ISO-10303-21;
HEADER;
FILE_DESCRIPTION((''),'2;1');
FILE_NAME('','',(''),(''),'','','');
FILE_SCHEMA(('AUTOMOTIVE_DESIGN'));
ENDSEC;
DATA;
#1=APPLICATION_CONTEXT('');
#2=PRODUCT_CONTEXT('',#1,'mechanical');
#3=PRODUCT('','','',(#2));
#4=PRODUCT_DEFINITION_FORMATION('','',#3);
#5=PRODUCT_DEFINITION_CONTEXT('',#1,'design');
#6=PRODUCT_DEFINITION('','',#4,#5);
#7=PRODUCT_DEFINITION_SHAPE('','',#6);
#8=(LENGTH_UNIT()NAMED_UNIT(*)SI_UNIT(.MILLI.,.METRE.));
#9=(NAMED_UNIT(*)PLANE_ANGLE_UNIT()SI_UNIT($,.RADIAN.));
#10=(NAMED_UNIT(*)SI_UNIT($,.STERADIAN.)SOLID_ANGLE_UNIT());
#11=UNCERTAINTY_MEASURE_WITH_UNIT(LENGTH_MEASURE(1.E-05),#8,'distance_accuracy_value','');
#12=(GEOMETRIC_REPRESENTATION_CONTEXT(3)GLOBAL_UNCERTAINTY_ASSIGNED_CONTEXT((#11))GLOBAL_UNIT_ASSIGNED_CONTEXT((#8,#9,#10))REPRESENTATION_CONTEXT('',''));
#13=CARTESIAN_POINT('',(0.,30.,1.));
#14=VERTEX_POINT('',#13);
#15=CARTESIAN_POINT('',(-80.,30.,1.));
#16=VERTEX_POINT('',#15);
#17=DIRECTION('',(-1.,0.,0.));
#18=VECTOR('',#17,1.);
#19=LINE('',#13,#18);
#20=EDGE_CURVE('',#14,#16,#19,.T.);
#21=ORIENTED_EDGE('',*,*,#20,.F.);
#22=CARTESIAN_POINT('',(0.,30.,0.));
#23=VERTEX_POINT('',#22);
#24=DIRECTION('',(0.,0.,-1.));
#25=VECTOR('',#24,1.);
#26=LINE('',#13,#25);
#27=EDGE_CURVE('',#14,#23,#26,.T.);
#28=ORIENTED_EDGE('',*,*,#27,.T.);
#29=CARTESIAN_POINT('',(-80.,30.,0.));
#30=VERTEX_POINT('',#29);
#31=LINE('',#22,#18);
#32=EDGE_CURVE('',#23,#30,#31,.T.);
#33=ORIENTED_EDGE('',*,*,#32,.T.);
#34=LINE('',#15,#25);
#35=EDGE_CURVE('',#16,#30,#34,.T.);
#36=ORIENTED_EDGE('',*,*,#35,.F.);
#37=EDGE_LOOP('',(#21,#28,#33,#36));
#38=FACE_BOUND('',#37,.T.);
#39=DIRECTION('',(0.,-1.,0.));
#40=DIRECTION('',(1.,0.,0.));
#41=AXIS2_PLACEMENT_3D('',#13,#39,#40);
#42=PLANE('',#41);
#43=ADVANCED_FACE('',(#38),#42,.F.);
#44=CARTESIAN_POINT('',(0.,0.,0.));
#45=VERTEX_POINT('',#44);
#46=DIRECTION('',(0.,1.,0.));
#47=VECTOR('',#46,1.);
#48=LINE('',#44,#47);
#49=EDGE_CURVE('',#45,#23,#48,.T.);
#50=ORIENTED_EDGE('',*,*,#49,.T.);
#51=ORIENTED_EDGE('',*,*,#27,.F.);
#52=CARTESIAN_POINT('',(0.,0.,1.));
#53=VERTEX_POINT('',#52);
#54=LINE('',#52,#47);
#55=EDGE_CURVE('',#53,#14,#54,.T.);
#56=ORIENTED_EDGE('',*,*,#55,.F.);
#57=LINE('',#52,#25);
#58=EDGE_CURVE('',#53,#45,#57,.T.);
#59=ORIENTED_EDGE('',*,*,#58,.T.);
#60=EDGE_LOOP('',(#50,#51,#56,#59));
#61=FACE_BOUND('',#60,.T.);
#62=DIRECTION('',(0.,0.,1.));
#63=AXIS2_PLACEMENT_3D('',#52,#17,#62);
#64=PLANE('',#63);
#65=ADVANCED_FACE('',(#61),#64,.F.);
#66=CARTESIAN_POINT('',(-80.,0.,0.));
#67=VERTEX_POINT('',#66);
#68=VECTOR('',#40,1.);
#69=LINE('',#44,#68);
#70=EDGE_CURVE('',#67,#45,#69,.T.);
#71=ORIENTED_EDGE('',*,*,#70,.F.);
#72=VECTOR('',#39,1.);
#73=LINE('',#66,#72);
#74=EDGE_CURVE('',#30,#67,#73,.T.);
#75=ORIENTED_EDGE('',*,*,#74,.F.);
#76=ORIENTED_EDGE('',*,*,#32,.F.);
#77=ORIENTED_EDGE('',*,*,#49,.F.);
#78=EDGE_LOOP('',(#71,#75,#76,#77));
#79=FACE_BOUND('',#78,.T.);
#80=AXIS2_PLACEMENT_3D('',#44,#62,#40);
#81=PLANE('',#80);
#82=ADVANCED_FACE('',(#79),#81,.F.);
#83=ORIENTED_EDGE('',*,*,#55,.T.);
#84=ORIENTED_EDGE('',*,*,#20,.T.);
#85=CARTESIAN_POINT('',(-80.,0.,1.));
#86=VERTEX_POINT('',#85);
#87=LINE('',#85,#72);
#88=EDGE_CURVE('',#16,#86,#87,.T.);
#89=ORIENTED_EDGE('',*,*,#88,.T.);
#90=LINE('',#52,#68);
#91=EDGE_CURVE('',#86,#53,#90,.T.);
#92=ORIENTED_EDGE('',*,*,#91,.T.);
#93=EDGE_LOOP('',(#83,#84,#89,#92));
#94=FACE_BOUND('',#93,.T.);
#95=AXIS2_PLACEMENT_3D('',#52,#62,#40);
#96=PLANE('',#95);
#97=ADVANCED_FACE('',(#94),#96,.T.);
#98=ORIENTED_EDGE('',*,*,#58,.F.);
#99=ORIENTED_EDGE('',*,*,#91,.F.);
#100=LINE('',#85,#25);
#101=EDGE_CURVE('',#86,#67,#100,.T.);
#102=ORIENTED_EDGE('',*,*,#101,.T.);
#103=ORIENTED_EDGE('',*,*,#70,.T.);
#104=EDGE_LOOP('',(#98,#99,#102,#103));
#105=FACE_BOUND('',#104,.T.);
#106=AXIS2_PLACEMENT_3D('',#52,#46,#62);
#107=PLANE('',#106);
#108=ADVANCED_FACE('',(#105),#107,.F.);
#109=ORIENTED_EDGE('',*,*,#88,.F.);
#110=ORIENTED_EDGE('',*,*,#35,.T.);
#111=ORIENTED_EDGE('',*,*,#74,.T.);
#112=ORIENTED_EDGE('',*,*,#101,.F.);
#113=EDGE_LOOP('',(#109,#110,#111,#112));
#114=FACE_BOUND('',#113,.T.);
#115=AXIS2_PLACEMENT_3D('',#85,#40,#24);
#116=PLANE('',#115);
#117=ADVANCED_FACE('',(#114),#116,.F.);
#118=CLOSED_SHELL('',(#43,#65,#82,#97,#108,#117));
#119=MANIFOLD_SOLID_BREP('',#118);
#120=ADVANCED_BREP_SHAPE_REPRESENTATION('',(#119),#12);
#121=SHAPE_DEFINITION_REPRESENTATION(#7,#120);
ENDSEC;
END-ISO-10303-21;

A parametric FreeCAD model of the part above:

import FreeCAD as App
import Part
import Sketcher

V = App.Vector

doc = App.newDocument("Part")
params = doc.addObject("Spreadsheet::Sheet", "Params")
for row, (alias, value) in enumerate([
    ("sketch1_width", "80 mm"),
    ("sketch1_height", "30 mm"),
    ("pad1_length", "1 mm"),
], start=1):
    params.set(f"A{row}", alias)
    params.set(f"B{row}", "=" + value)
    params.setAlias(f"B{row}", alias)

body = doc.addObject("PartDesign::Body", "Body")

sketch1 = body.newObject("Sketcher::SketchObject", "Sketch")
sketch1.AttachmentSupport = (doc.getObject("XY_Plane"), [""])
sketch1.MapMode = "FlatFace"
sketch1.addGeometry(Part.LineSegment(V(-80, 30, 0), V(-80, 0, 0)), False)
sketch1.addGeometry(Part.LineSegment(V(-80, 0, 0), V(0, 0, 0)), False)
sketch1.addGeometry(Part.LineSegment(V(0, 0, 0), V(0, 30, 0)), False)
sketch1.addGeometry(Part.LineSegment(V(0, 30, 0), V(-80, 30, 0)), False)
sketch1.addConstraint(Sketcher.Constraint("Coincident", 0, 2, 1, 1))
sketch1.addConstraint(Sketcher.Constraint("Coincident", 1, 2, 2, 1))
sketch1.addConstraint(Sketcher.Constraint("Coincident", 2, 2, 3, 1))
sketch1.addConstraint(Sketcher.Constraint("Coincident", 3, 2, 0, 1))
sketch1.addConstraint(Sketcher.Constraint("Vertical", 0))
sketch1.addConstraint(Sketcher.Constraint("Horizontal", 1))
sketch1.addConstraint(Sketcher.Constraint("Vertical", 2))
sketch1.addConstraint(Sketcher.Constraint("Horizontal", 3))
sketch1.addConstraint(Sketcher.Constraint("Coincident", 1, 2, -1, 1))
sketch1.addConstraint(Sketcher.Constraint("DistanceX", 1, 1, 1, 2, 80.0))
sketch1.addConstraint(Sketcher.Constraint("DistanceY", 0, 2, 0, 1, 30.0))
sketch1.setExpression("Constraints[9]", "Params.sketch1_width")
sketch1.setExpression("Constraints[10]", "Params.sketch1_height")
pad1 = body.newObject("PartDesign::Pad", "Pad")
pad1.Profile = sketch1
pad1.setExpression("Length", "Params.pad1_length")

doc.recompute()
